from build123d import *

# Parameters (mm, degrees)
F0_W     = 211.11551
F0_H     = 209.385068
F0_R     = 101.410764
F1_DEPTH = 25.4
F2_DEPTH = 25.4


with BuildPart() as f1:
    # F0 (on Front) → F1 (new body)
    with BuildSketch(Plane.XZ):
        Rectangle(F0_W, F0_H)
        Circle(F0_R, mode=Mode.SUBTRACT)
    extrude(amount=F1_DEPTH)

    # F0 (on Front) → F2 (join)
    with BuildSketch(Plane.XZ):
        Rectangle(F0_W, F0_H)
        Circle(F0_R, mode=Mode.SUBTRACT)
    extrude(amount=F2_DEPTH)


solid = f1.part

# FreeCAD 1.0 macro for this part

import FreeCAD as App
import Part
import Sketcher
from FreeCAD import Vector
Q = App.Units.Quantity

doc = App.newDocument("Part")
body = doc.addObject("PartDesign::Body", "Body")

# Sketch on XZ plane
sketch1 = body.newObject("Sketcher::SketchObject", "Sketch")
sketch1.AttachmentSupport = (doc.getObject("XZ_Plane"), [""])
sketch1.MapMode = "FlatFace"
sketch1.addGeometry([
    Part.LineSegment(Vector(-106, 105, 0), Vector(-106, -105, 0)),  # 0
    Part.LineSegment(Vector(-106, -105, 0), Vector(106, -105, 0)),  # 1
    Part.LineSegment(Vector(106, -105, 0), Vector(106, 105, 0)),  # 2
    Part.LineSegment(Vector(106, 105, 0), Vector(-106, 105, 0)),  # 3
    Part.Circle(Vector(0, 0, 0), Vector(0, 0, 1), 101),  # 4
], False)
sketch1.addConstraint([
    Sketcher.Constraint("Coincident", 0, 2, 1, 1),
    Sketcher.Constraint("Coincident", 1, 2, 2, 1),
    Sketcher.Constraint("Coincident", 2, 2, 3, 1),
    Sketcher.Constraint("Coincident", 3, 2, 0, 1),
    Sketcher.Constraint("Vertical", 0),
    Sketcher.Constraint("Horizontal", 1),
    Sketcher.Constraint("Vertical", 2),
    Sketcher.Constraint("Horizontal", 3),
    Sketcher.Constraint("Coincident", 4, 3, -1, 1),
    Sketcher.Constraint("Symmetric", 0, 2, 2, 2, -1, 1),
    Sketcher.Constraint("Diameter", 4, 202.821528),
    Sketcher.Constraint("DistanceX", 1, 1, 1, 2, 211.11551),
    Sketcher.Constraint("DistanceY", 0, 2, 0, 1, 209.385068),
])
pad1 = body.newObject("PartDesign::Pad", "Pad")
pad1.Profile = sketch1
pad1.Length = Q("1 in")

# Sketch on XZ plane
sketch2 = body.newObject("Sketcher::SketchObject", "Sketch001")
sketch2.AttachmentSupport = (doc.getObject("XZ_Plane"), [""])
sketch2.MapMode = "FlatFace"
sketch2.addGeometry([
    Part.LineSegment(Vector(-106, 105, 0), Vector(-106, -105, 0)),  # 0
    Part.LineSegment(Vector(-106, -105, 0), Vector(106, -105, 0)),  # 1
    Part.LineSegment(Vector(106, -105, 0), Vector(106, 105, 0)),  # 2
    Part.LineSegment(Vector(106, 105, 0), Vector(-106, 105, 0)),  # 3
    Part.Circle(Vector(0, 0, 0), Vector(0, 0, 1), 101),  # 4
], False)
sketch2.addConstraint([
    Sketcher.Constraint("Coincident", 0, 2, 1, 1),
    Sketcher.Constraint("Coincident", 1, 2, 2, 1),
    Sketcher.Constraint("Coincident", 2, 2, 3, 1),
    Sketcher.Constraint("Coincident", 3, 2, 0, 1),
    Sketcher.Constraint("Vertical", 0),
    Sketcher.Constraint("Horizontal", 1),
    Sketcher.Constraint("Vertical", 2),
    Sketcher.Constraint("Horizontal", 3),
    Sketcher.Constraint("Coincident", 4, 3, -1, 1),
    Sketcher.Constraint("Symmetric", 0, 2, 2, 2, -1, 1),
    Sketcher.Constraint("Diameter", 4, 202.821528),
    Sketcher.Constraint("DistanceX", 1, 1, 1, 2, 211.11551),
    Sketcher.Constraint("DistanceY", 0, 2, 0, 1, 209.385068),
])
pad2 = body.newObject("PartDesign::Pad", "Pad001")
pad2.Profile = sketch2
pad2.Length = Q("1 in")

doc.recompute()
